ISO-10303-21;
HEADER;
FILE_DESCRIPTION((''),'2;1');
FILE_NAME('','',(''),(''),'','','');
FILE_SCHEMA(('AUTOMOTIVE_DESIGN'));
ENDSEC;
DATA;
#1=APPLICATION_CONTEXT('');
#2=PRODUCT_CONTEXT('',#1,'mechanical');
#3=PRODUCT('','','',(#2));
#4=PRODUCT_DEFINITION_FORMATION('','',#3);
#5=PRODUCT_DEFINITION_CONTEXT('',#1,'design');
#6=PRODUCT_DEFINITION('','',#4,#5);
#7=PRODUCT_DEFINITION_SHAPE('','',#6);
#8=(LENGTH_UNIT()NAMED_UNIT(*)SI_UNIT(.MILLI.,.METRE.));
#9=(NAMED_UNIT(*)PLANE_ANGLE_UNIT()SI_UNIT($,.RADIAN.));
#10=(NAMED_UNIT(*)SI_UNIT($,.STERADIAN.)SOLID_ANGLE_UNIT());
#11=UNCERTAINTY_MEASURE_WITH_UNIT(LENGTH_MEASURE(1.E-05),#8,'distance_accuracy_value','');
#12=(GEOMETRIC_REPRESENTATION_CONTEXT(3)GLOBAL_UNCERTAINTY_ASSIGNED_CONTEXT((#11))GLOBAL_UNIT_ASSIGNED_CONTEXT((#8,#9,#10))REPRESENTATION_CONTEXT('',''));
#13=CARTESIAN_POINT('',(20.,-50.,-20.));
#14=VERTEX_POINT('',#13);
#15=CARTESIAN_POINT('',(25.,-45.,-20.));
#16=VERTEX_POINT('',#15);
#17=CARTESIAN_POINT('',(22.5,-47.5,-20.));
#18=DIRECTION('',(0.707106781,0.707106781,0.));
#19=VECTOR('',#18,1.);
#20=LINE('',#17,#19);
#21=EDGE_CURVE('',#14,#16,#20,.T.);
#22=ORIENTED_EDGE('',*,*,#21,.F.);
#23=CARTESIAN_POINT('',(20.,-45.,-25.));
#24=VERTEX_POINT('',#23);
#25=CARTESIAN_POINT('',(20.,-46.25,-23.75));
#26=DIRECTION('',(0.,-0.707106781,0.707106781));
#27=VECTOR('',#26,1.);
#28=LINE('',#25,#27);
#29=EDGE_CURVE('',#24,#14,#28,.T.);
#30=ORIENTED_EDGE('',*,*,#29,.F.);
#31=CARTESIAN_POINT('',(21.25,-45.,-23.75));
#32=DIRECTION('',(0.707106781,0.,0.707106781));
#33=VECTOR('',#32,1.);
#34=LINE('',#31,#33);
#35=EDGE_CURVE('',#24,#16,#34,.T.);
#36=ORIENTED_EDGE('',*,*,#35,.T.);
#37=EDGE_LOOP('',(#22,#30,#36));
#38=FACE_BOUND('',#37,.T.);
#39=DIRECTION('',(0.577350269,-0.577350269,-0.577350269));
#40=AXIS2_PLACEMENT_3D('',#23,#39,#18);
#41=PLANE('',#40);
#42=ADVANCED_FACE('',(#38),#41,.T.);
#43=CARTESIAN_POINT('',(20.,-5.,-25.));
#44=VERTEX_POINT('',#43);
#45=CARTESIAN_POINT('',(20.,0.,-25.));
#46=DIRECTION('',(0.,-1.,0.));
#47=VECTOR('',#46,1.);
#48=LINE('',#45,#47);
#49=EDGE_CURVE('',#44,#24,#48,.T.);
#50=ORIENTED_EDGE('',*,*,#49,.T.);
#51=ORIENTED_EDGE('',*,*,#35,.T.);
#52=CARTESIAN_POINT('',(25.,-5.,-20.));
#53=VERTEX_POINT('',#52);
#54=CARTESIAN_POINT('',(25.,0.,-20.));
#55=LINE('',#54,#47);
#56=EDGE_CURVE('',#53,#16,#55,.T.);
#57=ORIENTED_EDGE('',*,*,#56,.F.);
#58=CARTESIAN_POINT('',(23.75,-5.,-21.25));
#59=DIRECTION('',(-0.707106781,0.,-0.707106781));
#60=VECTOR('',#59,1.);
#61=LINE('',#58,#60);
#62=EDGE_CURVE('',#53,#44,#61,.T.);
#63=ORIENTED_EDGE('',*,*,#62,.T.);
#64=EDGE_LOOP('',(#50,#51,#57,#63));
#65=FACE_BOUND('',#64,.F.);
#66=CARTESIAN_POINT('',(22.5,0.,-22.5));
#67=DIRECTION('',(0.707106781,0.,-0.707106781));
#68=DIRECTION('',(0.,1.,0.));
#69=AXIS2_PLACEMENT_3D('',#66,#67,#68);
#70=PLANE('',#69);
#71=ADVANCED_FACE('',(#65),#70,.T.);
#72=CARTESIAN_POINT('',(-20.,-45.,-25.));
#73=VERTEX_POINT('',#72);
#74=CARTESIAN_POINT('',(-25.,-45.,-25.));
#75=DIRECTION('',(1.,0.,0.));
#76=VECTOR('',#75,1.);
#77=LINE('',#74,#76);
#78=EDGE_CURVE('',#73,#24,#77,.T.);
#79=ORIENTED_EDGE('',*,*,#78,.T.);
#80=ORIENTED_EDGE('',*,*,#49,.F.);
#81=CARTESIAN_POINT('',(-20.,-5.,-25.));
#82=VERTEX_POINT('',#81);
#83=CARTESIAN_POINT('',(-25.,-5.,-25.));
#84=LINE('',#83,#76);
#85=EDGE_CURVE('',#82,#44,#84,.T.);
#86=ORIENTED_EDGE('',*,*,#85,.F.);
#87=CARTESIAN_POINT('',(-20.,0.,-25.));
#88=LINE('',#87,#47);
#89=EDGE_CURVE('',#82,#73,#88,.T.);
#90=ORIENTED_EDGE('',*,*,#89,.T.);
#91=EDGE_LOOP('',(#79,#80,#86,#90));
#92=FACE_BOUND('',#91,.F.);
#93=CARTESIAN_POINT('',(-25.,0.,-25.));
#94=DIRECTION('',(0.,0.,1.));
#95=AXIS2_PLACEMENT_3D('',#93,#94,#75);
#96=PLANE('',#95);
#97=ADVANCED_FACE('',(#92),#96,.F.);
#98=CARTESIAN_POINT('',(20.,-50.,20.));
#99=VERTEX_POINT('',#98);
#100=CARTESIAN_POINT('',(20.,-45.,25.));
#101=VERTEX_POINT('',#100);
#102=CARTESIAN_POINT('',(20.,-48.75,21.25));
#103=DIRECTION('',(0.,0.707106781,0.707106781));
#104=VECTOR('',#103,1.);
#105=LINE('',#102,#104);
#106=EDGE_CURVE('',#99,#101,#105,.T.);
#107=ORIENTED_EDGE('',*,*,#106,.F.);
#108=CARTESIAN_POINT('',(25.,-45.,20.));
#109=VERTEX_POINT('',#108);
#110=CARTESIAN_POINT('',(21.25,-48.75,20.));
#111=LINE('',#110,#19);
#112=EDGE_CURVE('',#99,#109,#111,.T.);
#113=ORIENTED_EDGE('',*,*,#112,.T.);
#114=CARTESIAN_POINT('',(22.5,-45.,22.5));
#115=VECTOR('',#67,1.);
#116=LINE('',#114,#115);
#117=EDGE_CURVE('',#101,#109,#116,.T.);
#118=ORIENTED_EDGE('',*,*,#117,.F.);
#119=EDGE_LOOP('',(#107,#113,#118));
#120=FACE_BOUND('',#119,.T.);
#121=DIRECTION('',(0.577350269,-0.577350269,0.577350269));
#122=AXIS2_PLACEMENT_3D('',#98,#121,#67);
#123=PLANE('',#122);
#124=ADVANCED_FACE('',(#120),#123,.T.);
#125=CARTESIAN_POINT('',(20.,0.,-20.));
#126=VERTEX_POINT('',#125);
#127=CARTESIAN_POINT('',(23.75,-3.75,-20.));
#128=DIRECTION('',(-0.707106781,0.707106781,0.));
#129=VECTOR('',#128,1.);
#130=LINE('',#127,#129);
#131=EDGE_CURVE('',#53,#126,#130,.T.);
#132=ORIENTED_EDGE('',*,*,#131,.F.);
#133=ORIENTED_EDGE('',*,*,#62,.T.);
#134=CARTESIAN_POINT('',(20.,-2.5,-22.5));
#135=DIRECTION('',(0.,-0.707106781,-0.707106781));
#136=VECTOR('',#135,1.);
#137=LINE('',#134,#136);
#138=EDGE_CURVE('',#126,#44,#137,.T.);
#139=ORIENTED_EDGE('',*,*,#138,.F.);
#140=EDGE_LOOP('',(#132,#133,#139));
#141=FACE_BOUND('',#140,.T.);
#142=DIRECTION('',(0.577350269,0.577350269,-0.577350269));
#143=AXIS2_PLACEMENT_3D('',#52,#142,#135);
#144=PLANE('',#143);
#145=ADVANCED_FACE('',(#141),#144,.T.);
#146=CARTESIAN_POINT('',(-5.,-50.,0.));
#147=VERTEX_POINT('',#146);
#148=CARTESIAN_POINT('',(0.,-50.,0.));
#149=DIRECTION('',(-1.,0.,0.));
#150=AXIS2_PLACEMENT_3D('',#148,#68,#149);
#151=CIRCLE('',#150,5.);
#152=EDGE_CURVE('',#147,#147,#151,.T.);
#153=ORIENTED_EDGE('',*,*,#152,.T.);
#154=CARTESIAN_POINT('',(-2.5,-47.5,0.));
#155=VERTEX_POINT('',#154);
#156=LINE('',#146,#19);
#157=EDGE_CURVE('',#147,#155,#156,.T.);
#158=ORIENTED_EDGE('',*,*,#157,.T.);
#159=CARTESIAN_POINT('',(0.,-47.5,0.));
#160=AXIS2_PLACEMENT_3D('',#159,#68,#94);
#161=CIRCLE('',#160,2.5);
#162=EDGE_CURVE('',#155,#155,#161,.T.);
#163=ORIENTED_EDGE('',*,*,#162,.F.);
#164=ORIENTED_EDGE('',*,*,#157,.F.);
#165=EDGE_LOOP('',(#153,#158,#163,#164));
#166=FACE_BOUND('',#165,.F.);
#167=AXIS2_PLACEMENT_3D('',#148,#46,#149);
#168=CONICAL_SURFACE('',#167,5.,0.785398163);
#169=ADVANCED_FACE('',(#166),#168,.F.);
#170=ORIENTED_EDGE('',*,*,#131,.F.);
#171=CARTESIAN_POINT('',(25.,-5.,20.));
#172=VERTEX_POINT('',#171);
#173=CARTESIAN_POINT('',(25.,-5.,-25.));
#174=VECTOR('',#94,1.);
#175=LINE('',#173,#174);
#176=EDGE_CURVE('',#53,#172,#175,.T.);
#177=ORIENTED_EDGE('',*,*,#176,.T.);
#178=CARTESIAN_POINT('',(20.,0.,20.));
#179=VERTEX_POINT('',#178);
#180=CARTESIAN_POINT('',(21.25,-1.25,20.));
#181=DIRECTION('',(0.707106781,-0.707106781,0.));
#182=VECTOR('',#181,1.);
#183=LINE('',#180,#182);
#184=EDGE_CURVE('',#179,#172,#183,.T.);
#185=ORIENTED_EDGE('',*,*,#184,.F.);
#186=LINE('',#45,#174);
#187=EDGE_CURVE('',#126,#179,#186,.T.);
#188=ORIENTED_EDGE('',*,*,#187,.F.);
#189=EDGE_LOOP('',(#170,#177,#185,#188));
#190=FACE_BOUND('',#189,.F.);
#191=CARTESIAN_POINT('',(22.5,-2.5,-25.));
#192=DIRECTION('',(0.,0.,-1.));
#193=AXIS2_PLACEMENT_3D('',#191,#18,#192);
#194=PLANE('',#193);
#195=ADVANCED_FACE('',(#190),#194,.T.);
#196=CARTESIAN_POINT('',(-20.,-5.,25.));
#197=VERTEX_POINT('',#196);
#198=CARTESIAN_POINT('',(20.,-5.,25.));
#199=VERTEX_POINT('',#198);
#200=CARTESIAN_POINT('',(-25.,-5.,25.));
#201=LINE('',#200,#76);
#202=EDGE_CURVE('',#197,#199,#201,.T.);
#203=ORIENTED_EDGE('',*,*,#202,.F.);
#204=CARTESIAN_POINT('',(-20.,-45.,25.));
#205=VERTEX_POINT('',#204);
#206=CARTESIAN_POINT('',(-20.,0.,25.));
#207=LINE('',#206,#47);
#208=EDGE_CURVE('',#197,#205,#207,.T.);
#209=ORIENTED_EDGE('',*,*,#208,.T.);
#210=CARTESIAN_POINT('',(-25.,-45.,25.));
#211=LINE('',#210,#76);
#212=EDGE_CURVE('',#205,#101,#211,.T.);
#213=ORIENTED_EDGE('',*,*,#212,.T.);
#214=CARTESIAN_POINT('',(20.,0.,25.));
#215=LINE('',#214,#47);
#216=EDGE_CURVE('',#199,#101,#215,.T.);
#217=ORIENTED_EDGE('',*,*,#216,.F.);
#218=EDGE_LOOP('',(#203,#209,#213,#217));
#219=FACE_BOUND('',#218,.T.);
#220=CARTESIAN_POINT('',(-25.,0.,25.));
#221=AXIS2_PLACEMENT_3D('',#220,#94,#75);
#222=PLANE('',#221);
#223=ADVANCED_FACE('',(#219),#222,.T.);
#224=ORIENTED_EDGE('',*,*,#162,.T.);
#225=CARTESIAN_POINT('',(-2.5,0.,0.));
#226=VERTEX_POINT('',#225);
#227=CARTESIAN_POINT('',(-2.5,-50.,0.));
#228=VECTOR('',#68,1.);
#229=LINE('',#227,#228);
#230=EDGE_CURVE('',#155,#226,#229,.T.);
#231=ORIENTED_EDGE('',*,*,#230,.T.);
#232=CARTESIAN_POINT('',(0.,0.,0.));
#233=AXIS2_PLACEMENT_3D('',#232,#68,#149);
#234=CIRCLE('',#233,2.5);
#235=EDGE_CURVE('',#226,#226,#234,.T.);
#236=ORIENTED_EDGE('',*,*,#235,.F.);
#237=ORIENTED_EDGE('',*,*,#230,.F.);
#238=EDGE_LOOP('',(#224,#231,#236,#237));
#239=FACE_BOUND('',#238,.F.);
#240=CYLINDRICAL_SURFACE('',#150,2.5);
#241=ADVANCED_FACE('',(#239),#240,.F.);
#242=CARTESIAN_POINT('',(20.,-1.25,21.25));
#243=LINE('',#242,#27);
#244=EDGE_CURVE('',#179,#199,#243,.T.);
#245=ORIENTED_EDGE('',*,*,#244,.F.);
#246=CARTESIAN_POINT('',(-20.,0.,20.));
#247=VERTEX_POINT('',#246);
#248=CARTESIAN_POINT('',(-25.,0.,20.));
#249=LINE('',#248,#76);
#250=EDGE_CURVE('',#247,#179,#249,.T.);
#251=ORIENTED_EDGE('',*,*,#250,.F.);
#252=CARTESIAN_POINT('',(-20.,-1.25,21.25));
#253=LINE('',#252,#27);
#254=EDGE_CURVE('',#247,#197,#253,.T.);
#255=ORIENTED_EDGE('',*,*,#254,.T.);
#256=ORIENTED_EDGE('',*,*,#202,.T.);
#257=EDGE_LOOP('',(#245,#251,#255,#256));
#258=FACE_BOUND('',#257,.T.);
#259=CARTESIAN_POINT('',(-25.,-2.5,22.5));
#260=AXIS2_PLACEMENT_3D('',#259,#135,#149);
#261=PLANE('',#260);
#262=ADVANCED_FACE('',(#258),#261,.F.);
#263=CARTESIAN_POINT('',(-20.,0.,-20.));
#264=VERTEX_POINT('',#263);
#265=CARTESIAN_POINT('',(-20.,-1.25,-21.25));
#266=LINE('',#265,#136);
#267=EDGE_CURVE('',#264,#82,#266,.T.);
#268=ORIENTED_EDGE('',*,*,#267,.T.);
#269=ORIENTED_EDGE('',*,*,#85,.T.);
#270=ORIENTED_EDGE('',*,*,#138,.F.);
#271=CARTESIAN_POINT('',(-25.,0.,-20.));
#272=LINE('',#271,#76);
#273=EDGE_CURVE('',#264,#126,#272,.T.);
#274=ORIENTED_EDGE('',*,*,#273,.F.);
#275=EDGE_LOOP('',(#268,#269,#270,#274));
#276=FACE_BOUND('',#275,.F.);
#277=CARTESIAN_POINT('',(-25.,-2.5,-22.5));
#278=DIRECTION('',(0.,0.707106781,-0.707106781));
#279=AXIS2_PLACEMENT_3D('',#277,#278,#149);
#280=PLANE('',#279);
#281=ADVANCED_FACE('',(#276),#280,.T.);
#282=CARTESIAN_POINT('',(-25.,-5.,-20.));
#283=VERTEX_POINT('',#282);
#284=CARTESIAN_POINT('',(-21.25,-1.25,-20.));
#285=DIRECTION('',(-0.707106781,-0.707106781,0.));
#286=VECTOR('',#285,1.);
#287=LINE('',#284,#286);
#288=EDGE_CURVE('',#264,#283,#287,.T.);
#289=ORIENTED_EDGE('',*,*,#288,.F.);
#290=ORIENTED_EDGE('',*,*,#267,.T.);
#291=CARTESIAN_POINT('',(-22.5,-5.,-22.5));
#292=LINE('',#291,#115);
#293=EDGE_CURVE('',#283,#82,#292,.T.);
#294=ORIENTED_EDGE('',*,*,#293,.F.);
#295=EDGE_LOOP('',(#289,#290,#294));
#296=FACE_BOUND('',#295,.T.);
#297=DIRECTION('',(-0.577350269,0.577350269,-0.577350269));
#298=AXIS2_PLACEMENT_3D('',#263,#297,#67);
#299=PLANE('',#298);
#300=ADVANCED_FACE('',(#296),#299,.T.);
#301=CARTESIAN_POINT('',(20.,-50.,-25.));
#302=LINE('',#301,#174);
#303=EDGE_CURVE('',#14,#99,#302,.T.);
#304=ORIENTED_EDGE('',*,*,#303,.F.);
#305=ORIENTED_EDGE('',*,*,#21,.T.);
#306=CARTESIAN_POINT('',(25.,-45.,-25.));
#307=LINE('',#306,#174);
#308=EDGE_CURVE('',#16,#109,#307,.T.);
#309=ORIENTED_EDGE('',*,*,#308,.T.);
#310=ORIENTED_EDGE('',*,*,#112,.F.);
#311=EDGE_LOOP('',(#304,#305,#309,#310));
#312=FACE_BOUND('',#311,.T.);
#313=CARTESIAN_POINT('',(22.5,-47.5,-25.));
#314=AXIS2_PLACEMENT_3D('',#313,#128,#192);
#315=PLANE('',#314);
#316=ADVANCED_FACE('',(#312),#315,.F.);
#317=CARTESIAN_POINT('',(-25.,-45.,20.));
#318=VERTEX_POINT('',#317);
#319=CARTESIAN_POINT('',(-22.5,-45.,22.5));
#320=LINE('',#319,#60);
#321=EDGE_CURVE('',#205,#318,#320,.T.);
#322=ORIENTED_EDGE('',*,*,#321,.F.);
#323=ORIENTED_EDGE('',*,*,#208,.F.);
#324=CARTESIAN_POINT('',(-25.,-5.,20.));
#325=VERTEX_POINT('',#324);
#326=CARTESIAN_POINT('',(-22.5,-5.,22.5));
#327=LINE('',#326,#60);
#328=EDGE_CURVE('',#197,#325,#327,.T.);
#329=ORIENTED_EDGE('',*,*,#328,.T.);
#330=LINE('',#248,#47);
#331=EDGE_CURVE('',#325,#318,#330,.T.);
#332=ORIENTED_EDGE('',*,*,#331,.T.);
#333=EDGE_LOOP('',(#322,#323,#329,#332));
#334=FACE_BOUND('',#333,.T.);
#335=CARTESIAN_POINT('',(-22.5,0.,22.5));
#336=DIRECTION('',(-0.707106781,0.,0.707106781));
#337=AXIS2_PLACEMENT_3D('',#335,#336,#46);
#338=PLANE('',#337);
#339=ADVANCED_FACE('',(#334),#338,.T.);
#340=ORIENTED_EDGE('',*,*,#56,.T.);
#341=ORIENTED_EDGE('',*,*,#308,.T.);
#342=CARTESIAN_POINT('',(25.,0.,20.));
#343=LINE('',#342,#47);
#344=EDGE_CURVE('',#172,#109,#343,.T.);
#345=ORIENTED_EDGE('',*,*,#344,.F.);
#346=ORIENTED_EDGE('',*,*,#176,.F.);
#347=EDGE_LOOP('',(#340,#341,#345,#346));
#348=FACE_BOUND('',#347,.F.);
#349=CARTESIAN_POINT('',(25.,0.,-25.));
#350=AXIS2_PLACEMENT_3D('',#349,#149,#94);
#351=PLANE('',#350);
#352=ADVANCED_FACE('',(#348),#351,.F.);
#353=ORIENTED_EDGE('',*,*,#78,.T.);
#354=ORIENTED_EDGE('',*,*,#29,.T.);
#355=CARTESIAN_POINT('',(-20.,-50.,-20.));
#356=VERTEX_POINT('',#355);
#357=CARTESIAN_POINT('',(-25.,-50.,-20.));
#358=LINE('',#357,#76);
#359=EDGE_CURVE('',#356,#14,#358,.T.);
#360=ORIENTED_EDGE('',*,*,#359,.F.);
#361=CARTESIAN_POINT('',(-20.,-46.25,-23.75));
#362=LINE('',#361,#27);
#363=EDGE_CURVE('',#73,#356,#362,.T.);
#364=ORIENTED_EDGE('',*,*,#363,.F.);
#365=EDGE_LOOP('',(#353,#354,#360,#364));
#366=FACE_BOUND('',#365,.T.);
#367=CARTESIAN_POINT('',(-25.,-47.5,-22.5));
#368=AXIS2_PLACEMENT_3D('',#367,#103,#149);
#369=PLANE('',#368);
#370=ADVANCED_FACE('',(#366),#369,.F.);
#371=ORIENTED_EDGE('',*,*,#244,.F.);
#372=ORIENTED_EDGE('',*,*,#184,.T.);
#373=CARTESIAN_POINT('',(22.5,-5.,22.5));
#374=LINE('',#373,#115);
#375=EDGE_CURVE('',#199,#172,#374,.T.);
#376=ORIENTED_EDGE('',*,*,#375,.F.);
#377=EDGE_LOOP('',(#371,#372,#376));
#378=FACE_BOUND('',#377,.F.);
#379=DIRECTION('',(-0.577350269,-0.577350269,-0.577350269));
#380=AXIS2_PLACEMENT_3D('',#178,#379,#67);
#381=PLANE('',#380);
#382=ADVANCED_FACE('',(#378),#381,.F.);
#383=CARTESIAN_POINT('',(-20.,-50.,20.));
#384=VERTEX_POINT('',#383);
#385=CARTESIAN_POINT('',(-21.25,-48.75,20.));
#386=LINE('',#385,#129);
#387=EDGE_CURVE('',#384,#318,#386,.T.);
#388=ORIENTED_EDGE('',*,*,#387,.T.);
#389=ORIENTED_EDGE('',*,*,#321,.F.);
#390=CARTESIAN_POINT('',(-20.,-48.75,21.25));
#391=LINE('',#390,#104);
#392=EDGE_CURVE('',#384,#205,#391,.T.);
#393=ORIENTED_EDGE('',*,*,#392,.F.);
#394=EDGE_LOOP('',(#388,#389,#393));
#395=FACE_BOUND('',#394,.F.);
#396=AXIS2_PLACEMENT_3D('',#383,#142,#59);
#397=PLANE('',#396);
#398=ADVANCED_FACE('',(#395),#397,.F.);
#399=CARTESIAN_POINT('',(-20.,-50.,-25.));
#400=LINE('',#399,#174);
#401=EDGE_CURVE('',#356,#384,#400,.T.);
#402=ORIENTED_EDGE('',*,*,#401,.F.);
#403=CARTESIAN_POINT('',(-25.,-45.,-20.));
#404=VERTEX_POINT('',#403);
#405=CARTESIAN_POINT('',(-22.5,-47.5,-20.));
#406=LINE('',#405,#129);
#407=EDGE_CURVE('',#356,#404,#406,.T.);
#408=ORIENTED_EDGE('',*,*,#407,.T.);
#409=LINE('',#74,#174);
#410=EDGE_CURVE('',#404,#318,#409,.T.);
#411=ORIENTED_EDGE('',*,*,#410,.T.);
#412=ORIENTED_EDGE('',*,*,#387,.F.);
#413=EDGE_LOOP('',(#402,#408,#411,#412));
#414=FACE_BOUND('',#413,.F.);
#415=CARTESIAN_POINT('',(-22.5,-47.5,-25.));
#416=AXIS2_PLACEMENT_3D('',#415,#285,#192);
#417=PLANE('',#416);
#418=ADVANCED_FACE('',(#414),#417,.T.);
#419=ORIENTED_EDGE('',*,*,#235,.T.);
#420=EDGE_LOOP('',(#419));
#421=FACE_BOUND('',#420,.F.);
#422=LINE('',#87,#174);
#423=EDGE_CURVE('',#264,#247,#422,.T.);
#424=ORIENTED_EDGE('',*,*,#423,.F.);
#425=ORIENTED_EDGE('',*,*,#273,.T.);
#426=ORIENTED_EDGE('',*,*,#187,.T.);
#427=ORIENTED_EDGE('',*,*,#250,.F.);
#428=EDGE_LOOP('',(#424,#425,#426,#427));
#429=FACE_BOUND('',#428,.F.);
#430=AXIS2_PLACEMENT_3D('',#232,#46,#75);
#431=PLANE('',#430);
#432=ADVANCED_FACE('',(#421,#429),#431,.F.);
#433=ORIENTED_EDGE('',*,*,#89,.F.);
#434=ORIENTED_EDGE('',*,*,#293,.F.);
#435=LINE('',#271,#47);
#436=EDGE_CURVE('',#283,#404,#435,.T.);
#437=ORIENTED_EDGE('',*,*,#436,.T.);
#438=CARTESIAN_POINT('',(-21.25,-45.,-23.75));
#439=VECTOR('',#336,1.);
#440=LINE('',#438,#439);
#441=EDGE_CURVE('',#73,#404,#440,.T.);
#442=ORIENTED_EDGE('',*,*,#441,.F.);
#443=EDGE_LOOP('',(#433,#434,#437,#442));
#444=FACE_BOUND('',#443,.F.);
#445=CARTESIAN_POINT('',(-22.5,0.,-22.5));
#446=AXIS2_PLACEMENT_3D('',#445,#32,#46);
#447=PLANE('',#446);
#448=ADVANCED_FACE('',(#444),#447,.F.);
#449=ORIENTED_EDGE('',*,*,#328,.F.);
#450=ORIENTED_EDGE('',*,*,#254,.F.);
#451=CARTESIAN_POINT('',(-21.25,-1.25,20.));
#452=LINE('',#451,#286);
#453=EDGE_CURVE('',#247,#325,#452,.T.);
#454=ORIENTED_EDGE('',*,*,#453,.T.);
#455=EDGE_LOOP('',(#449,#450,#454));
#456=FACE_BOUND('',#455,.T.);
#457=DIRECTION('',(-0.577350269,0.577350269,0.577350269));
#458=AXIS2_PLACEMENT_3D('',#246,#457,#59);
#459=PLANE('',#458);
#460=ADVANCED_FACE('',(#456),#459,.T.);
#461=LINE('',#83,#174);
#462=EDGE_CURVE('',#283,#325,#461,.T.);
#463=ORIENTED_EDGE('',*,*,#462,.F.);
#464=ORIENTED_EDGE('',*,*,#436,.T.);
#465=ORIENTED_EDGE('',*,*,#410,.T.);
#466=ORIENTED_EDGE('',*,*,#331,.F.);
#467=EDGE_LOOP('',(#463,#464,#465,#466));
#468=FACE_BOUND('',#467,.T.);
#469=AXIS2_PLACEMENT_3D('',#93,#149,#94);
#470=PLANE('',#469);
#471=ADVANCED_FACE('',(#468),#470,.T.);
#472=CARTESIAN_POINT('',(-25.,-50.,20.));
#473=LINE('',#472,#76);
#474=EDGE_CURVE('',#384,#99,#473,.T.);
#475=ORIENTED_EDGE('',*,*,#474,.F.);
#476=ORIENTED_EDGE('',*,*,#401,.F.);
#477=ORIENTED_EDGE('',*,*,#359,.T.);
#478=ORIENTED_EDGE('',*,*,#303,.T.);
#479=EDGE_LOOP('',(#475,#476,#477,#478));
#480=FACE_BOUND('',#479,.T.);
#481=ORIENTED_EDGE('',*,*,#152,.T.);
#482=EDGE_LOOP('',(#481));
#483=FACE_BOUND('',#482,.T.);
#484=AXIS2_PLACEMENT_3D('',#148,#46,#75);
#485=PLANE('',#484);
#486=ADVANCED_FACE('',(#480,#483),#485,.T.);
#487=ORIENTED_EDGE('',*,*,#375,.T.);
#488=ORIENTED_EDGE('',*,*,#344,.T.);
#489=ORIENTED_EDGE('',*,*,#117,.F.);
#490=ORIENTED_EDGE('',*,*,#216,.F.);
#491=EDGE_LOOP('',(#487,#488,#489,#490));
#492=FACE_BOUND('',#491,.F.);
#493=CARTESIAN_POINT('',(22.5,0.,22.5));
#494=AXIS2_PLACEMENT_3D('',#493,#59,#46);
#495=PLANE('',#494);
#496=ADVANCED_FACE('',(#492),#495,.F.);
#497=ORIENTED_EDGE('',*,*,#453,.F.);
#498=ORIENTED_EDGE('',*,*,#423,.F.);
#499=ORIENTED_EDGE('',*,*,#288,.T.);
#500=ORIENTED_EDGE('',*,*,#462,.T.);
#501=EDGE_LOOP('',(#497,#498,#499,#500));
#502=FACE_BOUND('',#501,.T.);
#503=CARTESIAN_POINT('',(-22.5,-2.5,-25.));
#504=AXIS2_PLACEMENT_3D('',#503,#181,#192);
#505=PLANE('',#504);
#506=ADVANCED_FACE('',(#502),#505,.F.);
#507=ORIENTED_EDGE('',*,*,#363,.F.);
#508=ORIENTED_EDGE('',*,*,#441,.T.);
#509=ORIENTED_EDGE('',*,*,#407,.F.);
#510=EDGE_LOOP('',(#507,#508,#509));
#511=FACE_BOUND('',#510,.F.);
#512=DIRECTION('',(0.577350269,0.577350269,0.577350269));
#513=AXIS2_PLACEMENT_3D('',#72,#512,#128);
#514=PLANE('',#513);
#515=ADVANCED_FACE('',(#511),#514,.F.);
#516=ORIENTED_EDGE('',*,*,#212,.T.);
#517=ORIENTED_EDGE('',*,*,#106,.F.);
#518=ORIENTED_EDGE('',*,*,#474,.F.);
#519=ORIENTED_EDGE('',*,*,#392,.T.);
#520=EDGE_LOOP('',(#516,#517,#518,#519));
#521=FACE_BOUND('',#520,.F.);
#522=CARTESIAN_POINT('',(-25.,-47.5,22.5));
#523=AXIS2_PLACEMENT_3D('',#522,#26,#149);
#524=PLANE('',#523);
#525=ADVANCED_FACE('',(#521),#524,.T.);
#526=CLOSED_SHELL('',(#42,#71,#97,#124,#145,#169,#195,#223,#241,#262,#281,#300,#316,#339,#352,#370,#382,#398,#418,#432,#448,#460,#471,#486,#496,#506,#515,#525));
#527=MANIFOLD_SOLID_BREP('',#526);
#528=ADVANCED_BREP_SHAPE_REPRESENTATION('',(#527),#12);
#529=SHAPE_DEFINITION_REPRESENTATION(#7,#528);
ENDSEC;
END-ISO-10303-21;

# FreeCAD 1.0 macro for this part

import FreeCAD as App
import Part
import Sketcher
from FreeCAD import Vector


def add_polygon(sketch, points):
    """Adds a closed chain of lines whose ends are joined by coincident constraints."""
    first, n = sketch.GeometryCount, len(points)
    for a, b in zip(points, points[1:] + points[:1]):
        sketch.addGeometry(Part.LineSegment(App.Vector(*a, 0), App.Vector(*b, 0)), False)
    for i in range(n):
        sketch.addConstraint(Sketcher.Constraint("Coincident", first + i, 2, first + (i + 1) % n, 1))

doc = App.newDocument("Part")
body = doc.addObject("PartDesign::Body", "Body")

sketch1 = body.newObject("Sketcher::SketchObject", "Sketch")
sketch1.AttachmentSupport = (doc.getObject("XZ_Plane"), [""])
sketch1.MapMode = "FlatFace"
add_polygon(sketch1, [(-25, 25), (-25, -25), (25, -25), (25, 25)])
sketch1.addConstraint([
    Sketcher.Constraint("Vertical", 0),
    Sketcher.Constraint("Horizontal", 1),
    Sketcher.Constraint("Vertical", 2),
    Sketcher.Constraint("Horizontal", 3),
    Sketcher.Constraint("Symmetric", 0, 2, 2, 2, -1, 1),
    Sketcher.Constraint("Equal", 3, 0),
    Sketcher.Constraint("DistanceX", 1, 1, 1, 2, 50.0),
])
pad1 = body.newObject("PartDesign::Pad", "Pad")
pad1.Profile = sketch1
pad1.Length = 50
doc.recompute()

chamfer = body.newObject("PartDesign::Chamfer", "Chamfer")
chamfer.Base = (pad1, ["Edge1"])
chamfer.UseAllEdges = True
chamfer.Size = 5

sketch2 = body.newObject("Sketcher::SketchObject", "Sketch001")
sketch2.AttachmentSupport = (doc.getObject("XZ_Plane"), [""])
sketch2.MapMode = "FlatFace"
sketch2.AttachmentOffset = App.Placement(Vector(0, 0, 50), App.Rotation())
sketch2.addGeometry(Part.Circle(Vector(0, 0, 0), Vector(0, 0, 1), 2.5), False)
sketch2.addConstraint([
    Sketcher.Constraint("Coincident", 0, 3, -1, 1),
    Sketcher.Constraint("Diameter", 0, 5.0),
])
doc.recompute()
hole = body.newObject("PartDesign::Hole", "Hole")
hole.Profile = sketch2
hole.ThreadType = "None"
hole.Diameter = 5
hole.DepthType = "ThroughAll"
hole.HoleCutType = "Countersink"
hole.HoleCutDiameter = 10
hole.HoleCutCountersinkAngle = 90

doc.recompute()
